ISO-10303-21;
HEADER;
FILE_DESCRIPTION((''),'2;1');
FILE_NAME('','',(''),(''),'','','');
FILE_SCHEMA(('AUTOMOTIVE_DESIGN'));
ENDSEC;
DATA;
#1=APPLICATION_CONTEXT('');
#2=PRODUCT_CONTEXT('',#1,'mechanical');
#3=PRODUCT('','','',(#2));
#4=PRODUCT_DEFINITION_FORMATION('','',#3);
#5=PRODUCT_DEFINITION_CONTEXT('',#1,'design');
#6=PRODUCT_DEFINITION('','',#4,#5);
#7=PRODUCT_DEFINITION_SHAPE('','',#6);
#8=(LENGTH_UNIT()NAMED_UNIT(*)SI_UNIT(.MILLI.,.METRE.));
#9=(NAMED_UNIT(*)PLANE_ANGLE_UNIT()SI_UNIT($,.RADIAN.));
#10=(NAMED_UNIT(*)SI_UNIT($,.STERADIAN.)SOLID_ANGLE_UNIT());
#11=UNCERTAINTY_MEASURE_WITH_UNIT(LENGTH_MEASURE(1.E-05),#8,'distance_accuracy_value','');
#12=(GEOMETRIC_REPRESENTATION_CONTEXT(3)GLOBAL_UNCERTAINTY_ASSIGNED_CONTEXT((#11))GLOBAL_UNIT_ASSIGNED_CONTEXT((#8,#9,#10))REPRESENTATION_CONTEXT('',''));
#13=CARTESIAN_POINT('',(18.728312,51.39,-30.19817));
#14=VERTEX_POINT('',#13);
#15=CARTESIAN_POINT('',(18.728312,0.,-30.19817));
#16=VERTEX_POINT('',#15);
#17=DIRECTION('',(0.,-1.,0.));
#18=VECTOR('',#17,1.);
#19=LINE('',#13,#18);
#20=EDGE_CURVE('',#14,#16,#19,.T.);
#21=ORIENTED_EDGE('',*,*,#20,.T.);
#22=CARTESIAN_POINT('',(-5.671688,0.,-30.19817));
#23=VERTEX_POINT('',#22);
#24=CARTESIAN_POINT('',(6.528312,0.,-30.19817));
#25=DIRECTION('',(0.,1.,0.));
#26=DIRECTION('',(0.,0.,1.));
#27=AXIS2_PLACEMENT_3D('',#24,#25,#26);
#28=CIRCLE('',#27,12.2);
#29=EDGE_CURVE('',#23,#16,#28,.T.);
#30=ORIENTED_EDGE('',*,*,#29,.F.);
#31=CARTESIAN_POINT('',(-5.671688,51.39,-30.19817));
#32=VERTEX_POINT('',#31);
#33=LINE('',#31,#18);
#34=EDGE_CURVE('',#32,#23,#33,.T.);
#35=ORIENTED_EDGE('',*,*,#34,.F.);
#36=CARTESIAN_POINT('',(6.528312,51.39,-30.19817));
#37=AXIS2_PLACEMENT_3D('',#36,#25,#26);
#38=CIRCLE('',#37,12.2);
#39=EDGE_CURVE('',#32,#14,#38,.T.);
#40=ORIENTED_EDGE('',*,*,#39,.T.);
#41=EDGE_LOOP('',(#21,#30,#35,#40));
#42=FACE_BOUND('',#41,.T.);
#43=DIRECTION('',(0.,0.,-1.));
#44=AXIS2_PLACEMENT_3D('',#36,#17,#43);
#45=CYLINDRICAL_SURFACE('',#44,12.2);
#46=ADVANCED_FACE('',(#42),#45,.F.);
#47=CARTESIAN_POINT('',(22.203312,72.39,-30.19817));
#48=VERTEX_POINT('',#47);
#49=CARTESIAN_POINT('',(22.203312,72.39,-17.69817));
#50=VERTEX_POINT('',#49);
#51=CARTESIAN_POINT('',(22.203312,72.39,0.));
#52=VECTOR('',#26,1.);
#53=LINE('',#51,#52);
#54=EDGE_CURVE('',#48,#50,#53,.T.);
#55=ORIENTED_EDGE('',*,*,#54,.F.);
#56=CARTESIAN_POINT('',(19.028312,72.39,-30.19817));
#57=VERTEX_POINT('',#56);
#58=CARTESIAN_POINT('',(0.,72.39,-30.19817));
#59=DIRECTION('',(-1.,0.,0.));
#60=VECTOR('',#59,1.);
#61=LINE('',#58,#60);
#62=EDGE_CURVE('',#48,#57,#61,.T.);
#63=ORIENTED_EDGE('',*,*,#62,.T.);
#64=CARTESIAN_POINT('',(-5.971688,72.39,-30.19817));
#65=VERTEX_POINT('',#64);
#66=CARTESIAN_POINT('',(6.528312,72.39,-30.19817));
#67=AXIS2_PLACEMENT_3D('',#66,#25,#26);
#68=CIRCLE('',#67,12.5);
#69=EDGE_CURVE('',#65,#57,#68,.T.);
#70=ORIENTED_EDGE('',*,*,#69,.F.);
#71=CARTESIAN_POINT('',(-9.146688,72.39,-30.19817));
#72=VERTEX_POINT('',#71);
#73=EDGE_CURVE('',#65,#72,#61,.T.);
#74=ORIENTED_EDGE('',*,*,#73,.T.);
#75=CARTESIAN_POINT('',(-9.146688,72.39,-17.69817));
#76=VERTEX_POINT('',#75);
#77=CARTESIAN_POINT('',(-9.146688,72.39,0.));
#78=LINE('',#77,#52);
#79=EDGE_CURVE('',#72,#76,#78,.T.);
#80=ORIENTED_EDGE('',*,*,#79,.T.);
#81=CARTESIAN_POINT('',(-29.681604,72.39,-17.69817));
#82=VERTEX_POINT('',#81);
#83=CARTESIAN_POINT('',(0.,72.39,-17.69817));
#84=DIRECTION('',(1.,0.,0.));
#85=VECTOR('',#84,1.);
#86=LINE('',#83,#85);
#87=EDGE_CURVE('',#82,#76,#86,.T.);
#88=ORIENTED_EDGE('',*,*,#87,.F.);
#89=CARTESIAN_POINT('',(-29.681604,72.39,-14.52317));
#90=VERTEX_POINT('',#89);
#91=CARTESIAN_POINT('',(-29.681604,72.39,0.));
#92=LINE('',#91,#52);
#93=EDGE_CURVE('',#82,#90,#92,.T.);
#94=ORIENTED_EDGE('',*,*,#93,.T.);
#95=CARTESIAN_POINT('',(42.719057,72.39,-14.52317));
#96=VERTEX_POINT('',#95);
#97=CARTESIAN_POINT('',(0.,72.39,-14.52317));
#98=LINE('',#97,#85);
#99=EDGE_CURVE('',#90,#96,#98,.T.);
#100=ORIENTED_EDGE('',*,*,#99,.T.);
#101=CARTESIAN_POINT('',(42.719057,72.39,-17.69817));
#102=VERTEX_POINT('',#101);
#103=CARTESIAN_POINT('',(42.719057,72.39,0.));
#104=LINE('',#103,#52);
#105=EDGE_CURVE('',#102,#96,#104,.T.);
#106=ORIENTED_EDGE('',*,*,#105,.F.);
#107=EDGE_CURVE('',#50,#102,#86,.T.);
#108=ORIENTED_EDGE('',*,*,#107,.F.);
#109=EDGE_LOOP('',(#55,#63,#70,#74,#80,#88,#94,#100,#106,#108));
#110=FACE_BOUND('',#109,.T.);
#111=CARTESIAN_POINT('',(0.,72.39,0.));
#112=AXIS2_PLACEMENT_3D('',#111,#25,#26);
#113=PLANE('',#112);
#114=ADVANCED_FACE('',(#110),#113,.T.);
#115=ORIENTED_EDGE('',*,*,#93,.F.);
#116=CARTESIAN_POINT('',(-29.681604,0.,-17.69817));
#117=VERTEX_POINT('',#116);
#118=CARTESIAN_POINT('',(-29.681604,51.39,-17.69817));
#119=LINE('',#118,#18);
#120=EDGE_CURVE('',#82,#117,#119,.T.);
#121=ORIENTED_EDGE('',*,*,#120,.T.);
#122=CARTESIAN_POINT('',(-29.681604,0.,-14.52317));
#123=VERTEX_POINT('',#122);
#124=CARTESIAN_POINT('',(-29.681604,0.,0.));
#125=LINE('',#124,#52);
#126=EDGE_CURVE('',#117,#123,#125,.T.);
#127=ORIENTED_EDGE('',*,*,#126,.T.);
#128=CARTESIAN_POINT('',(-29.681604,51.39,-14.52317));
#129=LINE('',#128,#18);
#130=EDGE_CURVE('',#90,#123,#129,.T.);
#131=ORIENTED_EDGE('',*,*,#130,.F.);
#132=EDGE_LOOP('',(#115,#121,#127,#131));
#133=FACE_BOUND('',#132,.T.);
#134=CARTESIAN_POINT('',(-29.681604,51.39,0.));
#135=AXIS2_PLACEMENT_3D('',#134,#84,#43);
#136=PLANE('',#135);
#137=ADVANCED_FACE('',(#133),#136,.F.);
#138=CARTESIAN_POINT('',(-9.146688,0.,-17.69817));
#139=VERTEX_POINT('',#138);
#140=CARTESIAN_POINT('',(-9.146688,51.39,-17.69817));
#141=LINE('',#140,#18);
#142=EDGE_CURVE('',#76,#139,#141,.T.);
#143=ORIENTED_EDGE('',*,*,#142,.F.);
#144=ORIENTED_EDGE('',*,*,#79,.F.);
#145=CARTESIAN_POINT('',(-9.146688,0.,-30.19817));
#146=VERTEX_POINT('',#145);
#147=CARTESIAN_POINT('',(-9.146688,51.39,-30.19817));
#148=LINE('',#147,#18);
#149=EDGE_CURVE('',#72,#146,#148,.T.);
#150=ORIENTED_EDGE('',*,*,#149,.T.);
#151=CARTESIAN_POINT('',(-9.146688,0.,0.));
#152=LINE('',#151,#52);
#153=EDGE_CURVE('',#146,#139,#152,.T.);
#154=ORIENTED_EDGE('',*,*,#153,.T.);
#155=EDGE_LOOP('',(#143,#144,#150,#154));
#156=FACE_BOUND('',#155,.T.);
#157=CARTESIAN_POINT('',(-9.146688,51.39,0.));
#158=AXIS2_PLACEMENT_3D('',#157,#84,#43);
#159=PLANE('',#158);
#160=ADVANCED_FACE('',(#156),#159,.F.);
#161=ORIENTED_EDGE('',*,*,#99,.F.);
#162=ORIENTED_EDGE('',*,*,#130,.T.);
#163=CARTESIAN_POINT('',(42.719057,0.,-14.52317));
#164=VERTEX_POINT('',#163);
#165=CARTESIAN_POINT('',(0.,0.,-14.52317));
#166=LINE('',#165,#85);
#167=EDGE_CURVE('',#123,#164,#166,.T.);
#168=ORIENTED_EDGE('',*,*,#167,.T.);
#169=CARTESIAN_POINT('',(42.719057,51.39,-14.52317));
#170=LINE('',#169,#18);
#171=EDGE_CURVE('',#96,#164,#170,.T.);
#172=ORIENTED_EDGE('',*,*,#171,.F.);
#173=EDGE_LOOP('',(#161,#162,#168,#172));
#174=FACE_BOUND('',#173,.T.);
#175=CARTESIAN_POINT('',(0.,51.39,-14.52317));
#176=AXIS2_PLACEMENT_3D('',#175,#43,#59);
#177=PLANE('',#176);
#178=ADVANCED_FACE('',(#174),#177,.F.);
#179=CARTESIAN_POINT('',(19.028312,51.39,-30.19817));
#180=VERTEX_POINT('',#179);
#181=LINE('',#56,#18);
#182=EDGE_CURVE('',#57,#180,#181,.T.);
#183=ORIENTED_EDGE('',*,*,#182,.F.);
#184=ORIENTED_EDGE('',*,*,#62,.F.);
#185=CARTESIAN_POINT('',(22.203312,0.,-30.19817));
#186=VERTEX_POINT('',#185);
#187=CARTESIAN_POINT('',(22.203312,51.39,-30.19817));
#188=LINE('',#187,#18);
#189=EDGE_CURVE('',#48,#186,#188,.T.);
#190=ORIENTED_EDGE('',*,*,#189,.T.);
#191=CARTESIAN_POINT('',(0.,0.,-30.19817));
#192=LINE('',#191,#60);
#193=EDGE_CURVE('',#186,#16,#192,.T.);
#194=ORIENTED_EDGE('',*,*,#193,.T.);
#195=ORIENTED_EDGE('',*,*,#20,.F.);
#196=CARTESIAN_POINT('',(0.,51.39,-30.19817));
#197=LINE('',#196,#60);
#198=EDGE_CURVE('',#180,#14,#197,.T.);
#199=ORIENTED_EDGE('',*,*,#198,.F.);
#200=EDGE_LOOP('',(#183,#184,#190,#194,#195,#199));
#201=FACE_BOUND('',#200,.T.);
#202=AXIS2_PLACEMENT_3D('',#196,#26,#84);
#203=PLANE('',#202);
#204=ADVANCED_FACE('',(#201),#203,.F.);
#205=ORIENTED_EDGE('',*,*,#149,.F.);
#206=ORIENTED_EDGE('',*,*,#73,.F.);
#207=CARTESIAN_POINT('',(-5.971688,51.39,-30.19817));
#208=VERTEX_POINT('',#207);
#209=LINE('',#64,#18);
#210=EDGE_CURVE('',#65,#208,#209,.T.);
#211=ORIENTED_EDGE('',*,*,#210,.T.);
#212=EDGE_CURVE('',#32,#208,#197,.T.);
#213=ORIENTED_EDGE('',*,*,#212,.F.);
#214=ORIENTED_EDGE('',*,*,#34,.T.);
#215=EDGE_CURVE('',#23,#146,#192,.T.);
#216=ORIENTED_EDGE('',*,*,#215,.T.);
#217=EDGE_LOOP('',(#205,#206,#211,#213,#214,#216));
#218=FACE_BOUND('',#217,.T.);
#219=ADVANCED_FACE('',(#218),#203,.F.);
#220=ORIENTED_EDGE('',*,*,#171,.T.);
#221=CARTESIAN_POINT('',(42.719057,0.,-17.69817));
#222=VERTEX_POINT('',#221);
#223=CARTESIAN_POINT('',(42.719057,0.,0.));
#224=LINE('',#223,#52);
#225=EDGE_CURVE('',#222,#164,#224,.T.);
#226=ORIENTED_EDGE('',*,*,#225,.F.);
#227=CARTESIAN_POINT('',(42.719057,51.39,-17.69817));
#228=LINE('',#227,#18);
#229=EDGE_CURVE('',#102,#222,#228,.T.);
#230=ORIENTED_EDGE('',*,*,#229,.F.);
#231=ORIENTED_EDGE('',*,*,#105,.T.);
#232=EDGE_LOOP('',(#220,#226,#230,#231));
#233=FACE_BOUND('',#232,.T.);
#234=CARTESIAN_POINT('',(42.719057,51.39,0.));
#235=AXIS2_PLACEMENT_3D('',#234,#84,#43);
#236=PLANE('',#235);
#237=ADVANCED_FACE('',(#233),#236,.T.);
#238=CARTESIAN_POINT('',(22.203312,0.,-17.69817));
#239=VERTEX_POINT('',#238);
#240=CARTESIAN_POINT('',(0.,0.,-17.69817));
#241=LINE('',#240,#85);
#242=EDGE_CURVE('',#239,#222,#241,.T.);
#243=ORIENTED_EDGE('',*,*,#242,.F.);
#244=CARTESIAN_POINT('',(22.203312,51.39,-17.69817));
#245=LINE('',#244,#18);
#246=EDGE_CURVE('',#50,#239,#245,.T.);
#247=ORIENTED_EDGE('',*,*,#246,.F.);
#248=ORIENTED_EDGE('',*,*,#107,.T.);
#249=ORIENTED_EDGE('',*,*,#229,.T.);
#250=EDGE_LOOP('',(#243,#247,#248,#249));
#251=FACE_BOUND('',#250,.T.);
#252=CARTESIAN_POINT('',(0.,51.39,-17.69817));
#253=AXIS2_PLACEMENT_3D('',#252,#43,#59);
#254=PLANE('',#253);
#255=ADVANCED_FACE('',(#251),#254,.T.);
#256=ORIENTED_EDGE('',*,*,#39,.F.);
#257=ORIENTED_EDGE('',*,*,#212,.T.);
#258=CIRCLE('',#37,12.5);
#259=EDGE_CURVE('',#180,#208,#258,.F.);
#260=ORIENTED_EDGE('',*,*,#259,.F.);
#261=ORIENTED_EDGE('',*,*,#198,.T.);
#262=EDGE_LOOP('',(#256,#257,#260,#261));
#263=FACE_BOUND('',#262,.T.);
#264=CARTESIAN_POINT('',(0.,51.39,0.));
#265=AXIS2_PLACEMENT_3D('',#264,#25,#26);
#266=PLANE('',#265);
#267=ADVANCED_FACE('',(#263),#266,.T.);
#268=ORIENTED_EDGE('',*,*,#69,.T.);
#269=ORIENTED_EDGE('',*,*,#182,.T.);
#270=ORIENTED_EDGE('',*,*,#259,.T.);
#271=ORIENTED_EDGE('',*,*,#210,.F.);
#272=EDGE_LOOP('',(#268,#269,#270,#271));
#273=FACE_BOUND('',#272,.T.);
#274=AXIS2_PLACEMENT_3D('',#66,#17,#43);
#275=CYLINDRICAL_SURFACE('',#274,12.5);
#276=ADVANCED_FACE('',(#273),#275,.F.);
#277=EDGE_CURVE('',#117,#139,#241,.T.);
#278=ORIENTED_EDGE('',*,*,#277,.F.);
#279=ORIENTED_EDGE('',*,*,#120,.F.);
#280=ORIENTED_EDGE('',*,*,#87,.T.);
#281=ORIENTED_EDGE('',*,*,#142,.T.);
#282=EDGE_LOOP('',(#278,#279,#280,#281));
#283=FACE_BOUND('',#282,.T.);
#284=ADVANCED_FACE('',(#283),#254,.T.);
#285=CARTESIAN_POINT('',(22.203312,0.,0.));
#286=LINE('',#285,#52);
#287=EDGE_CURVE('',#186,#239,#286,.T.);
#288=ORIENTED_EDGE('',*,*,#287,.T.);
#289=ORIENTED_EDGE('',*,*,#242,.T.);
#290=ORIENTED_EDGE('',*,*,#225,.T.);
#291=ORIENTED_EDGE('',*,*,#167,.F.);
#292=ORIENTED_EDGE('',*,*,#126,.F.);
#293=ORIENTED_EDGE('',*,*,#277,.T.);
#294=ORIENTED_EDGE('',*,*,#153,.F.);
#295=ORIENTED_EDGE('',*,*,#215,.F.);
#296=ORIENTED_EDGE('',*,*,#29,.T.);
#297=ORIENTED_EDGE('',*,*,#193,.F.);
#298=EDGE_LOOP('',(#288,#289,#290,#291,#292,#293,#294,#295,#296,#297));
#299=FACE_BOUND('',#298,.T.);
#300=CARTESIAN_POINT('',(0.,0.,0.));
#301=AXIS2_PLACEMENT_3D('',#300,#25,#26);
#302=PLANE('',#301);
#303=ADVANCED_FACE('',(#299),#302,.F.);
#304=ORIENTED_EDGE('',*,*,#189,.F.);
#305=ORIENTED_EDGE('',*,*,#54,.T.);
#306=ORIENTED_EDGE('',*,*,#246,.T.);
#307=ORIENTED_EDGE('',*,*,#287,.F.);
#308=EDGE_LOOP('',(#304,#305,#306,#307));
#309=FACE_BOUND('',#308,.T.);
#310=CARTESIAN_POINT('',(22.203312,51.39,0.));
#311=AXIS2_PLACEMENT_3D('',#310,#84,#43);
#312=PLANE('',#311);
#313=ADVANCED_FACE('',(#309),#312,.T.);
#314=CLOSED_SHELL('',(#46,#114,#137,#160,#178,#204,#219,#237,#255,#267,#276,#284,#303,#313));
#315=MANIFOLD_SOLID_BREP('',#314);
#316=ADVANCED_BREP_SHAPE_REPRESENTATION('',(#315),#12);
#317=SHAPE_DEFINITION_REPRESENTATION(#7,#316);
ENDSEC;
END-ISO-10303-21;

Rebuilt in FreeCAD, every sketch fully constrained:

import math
import FreeCAD as App
import Part
import Sketcher

doc = App.newDocument("Part")
body = doc.addObject("PartDesign::Body", "Body")

# Sketch on XZ plane
sketch1 = body.newObject("Sketcher::SketchObject", "Sketch")
sketch1.AttachmentSupport = (doc.getObject("XZ_Plane"), [""])
sketch1.MapMode = "FlatFace"
sketch1.addGeometry([
    Part.ArcOfCircle(Part.Circle(App.Vector(6.5, -30.2, 0), App.Vector(0, 0, 1), 12.2), math.radians(0), math.radians(180)),  # 0
    Part.LineSegment(App.Vector(-5.7, -30.2, 0), App.Vector(-9.1, -30.2, 0)),  # 1
    Part.LineSegment(App.Vector(-9.1, -30.2, 0), App.Vector(-9.1, -17.7, 0)),  # 2
    Part.LineSegment(App.Vector(-9.1, -17.7, 0), App.Vector(-29.7, -17.7, 0)),  # 3
    Part.LineSegment(App.Vector(-29.7, -17.7, 0), App.Vector(-29.7, -14.5, 0)),  # 4
    Part.LineSegment(App.Vector(-29.7, -14.5, 0), App.Vector(42.7, -14.5, 0)),  # 5
    Part.LineSegment(App.Vector(42.7, -14.5, 0), App.Vector(42.7, -17.7, 0)),  # 6
    Part.LineSegment(App.Vector(42.7, -17.7, 0), App.Vector(22.2, -17.7, 0)),  # 7
    Part.LineSegment(App.Vector(22.2, -17.7, 0), App.Vector(22.2, -30.2, 0)),  # 8
    Part.LineSegment(App.Vector(22.2, -30.2, 0), App.Vector(18.7, -30.2, 0)),  # 9
], False)
sketch1.addConstraint([
    Sketcher.Constraint("Coincident", 0, 2, 1, 1),
    Sketcher.Constraint("Coincident", 1, 2, 2, 1),
    Sketcher.Constraint("Coincident", 2, 2, 3, 1),
    Sketcher.Constraint("Coincident", 3, 2, 4, 1),
    Sketcher.Constraint("Coincident", 4, 2, 5, 1),
    Sketcher.Constraint("Coincident", 5, 2, 6, 1),
    Sketcher.Constraint("Coincident", 6, 2, 7, 1),
    Sketcher.Constraint("Coincident", 7, 2, 8, 1),
    Sketcher.Constraint("Coincident", 8, 2, 9, 1),
    Sketcher.Constraint("Coincident", 9, 2, 0, 1),
    Sketcher.Constraint("Horizontal", 1),
    Sketcher.Constraint("Vertical", 2),
    Sketcher.Constraint("Horizontal", 3),
    Sketcher.Constraint("Vertical", 4),
    Sketcher.Constraint("Horizontal", 5),
    Sketcher.Constraint("Vertical", 6),
    Sketcher.Constraint("Horizontal", 7),
    Sketcher.Constraint("Vertical", 8),
    Sketcher.Constraint("Horizontal", 9),
    Sketcher.Constraint("Horizontal", 3, 2, 6, 2),
    Sketcher.Constraint("Horizontal", 1, 2, 8, 2),
    Sketcher.Constraint("Equal", 1, 9),
    Sketcher.Constraint("Radius", 0, 12.2),
    Sketcher.Constraint("DistanceY", 2, 1, 2, 2, 12.5),
    Sketcher.Constraint("DistanceY", 0, 3, 2, 2, 12.5),
    Sketcher.Constraint("DistanceX", 1, 2, 1, 1, 3.475),
    Sketcher.Constraint("DistanceY", 4, 1, 4, 2, 3.175),
    Sketcher.Constraint("DistanceX", 5, 1, 5, 2, 72.400661),
    Sketcher.Constraint("DistanceX", 3, 2, 3, 1, 20.534916),
    Sketcher.Constraint("DistanceX", -1, 1, 0, 3, 6.528312),
    Sketcher.Constraint("DistanceY", 0, 3, -1, 1, 30.19817),
])
pad1 = body.newObject("PartDesign::Pad", "Pad")
pad1.Profile = sketch1
pad1.Length = 51.39
pad1.Reversed = True

# Sketch on XZ plane
sketch2 = body.newObject("Sketcher::SketchObject", "Sketch001")
sketch2.AttachmentSupport = (doc.getObject("XZ_Plane"), [""])
sketch2.MapMode = "FlatFace"
sketch2.addGeometry([
    Part.LineSegment(App.Vector(-29.7, -17.7, 0), App.Vector(-29.7, -14.5, 0)),  # 0
    Part.LineSegment(App.Vector(-29.7, -14.5, 0), App.Vector(42.7, -14.5, 0)),  # 1
    Part.LineSegment(App.Vector(42.7, -14.5, 0), App.Vector(42.7, -17.7, 0)),  # 2
    Part.LineSegment(App.Vector(42.7, -17.7, 0), App.Vector(22.2, -17.7, 0)),  # 3
    Part.LineSegment(App.Vector(22.2, -17.7, 0), App.Vector(22.2, -30.2, 0)),  # 4
    Part.LineSegment(App.Vector(22.2, -30.2, 0), App.Vector(19, -30.2, 0)),  # 5
    Part.ArcOfCircle(Part.Circle(App.Vector(6.5, -30.2, 0), App.Vector(0, 0, 1), 12.5), math.radians(0), math.radians(90)),  # 6
    Part.ArcOfCircle(Part.Circle(App.Vector(6.5, -30.2, 0), App.Vector(0, 0, 1), 12.5), math.radians(90), math.radians(180)),  # 7
    Part.LineSegment(App.Vector(-6, -30.2, 0), App.Vector(-9.1, -30.2, 0)),  # 8
    Part.LineSegment(App.Vector(-9.1, -30.2, 0), App.Vector(-9.1, -17.7, 0)),  # 9
    Part.LineSegment(App.Vector(-9.1, -17.7, 0), App.Vector(-29.7, -17.7, 0)),  # 10
], False)
sketch2.addConstraint([
    Sketcher.Constraint("Coincident", 0, 2, 1, 1),
    Sketcher.Constraint("Coincident", 1, 2, 2, 1),
    Sketcher.Constraint("Coincident", 2, 2, 3, 1),
    Sketcher.Constraint("Coincident", 3, 2, 4, 1),
    Sketcher.Constraint("Coincident", 4, 2, 5, 1),
    Sketcher.Constraint("Coincident", 5, 2, 6, 1),
    Sketcher.Constraint("Tangent", 6, 2, 7, 1),
    Sketcher.Constraint("Coincident", 7, 2, 8, 1),
    Sketcher.Constraint("Coincident", 8, 2, 9, 1),
    Sketcher.Constraint("Coincident", 9, 2, 10, 1),
    Sketcher.Constraint("Coincident", 10, 2, 0, 1),
    Sketcher.Constraint("Vertical", 0),
    Sketcher.Constraint("Horizontal", 1),
    Sketcher.Constraint("Vertical", 2),
    Sketcher.Constraint("Horizontal", 3),
    Sketcher.Constraint("Vertical", 4),
    Sketcher.Constraint("Horizontal", 5),
    Sketcher.Constraint("Horizontal", 8),
    Sketcher.Constraint("Vertical", 9),
    Sketcher.Constraint("Horizontal", 10),
    Sketcher.Constraint("Equal", 6, 7),
    Sketcher.Constraint("Horizontal", 7, 3, 4, 2),
    Sketcher.Constraint("Horizontal", 3, 2, 6, 2),
    Sketcher.Constraint("Horizontal", 5, 2, 7, 2),
    Sketcher.Constraint("Horizontal", 6, 2, 9, 2),
    Sketcher.Constraint("Vertical", 7, 3, 6, 2),
    Sketcher.Constraint("Equal", 5, 8),
    Sketcher.Constraint("Equal", 8, 0),
    Sketcher.Constraint("Radius", 6, 12.5),
    Sketcher.Constraint("DistanceX", 5, 2, 5, 1, 3.175),
    Sketcher.Constraint("DistanceX", 1, 1, 1, 2, 72.400661),
    Sketcher.Constraint("DistanceX", 3, 2, 3, 1, 20.515745),
    Sketcher.Constraint("DistanceX", -1, 1, 6, 3, 6.528312),
    Sketcher.Constraint("DistanceY", 6, 3, -1, 1, 30.19817),
])
pad2 = body.newObject("PartDesign::Pad", "Pad001")
pad2.Profile = sketch2
pad2.Length = 72.39
pad2.Reversed = True

doc.recompute()
